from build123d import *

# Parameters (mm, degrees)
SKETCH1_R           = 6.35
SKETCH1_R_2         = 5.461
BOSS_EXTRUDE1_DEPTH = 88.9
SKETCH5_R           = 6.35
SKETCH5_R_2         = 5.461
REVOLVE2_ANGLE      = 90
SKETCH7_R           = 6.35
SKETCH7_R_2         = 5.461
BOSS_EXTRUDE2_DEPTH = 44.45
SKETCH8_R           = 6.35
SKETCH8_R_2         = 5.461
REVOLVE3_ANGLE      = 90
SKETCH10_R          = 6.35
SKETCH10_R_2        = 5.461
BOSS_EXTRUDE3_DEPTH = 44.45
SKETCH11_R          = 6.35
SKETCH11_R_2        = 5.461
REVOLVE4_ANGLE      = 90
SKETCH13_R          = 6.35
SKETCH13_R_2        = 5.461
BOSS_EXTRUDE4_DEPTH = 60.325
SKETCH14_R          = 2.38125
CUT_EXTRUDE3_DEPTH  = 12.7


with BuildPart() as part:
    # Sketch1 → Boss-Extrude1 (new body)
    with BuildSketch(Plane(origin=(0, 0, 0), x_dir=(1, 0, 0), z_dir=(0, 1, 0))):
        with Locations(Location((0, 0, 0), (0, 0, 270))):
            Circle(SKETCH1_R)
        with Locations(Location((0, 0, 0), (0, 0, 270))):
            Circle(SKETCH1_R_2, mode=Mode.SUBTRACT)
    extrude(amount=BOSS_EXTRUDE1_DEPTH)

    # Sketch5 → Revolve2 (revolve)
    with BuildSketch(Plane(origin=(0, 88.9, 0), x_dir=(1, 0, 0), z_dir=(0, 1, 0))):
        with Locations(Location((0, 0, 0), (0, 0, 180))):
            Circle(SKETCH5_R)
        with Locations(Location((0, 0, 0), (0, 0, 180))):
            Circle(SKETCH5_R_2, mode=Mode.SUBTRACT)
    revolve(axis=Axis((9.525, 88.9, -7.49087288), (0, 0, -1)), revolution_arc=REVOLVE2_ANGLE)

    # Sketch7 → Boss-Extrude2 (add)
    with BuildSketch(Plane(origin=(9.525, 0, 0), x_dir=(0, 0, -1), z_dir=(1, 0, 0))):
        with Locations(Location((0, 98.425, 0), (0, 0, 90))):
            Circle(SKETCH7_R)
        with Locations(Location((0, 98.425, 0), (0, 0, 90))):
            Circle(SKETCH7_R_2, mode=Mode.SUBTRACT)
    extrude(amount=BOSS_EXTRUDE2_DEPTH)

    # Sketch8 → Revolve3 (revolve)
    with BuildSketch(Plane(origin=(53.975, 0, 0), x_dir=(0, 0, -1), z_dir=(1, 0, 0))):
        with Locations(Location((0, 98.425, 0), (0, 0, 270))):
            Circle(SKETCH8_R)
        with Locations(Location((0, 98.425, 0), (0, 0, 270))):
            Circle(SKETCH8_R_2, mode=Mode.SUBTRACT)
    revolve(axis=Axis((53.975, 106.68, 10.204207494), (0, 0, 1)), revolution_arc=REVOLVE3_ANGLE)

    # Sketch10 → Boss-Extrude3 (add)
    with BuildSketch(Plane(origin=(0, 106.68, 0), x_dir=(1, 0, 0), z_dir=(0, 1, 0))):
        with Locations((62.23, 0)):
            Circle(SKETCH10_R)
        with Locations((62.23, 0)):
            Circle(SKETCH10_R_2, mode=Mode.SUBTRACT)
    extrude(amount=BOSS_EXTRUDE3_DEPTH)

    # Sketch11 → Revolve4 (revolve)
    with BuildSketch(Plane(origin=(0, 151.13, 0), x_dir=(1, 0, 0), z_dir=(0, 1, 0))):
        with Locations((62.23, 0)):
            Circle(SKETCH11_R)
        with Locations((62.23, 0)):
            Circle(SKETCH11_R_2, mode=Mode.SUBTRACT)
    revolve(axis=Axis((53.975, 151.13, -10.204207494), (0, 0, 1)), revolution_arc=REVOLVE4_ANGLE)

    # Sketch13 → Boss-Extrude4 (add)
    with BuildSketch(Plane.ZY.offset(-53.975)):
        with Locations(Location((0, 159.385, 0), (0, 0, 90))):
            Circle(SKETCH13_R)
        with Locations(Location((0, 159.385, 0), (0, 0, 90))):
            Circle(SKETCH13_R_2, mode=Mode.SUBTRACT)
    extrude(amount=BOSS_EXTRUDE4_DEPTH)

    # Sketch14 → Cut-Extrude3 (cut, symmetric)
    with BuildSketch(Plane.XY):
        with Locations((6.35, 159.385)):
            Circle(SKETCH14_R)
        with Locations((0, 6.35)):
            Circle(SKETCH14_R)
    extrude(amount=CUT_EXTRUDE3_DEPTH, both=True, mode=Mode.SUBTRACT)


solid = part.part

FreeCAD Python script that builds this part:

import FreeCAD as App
import Part
import Sketcher

V = App.Vector
Q = App.Units.Quantity

doc = App.newDocument("Part")
body = doc.addObject("PartDesign::Body", "Body")

sketch1 = body.newObject("Sketcher::SketchObject", "Sketch")
sketch1.AttachmentSupport = (doc.getObject("XZ_Plane"), [""])
sketch1.MapMode = "FlatFace"
sketch1.addGeometry([
    Part.Circle(V(0, 0, 0), V(0, 0, 1), 6),
    Part.Circle(V(0, 0, 0), V(0, 0, 1), 5),
], False)
sketch1.addConstraint([
    Sketcher.Constraint("Coincident", 0, 3, -1, 1),
    Sketcher.Constraint("Coincident", 1, 3, -1, 1),
    Sketcher.Constraint("Diameter", 0, Q("0.5 in")),
    Sketcher.Constraint("Diameter", 1, Q("0.43 in")),
])
pad1 = body.newObject("PartDesign::Pad", "Pad")
pad1.Profile = sketch1
pad1.Length = Q("3.5 in")
pad1.Reversed = True

sketch2 = body.newObject("Sketcher::SketchObject", "Sketch001")
sketch2.AttachmentSupport = (doc.getObject("XZ_Plane"), [""])
sketch2.MapMode = "FlatFace"
sketch2.AttachmentOffset = App.Placement(V(0, 0, -3.5 * 25.4), App.Rotation())
sketch2.addGeometry([
    Part.Circle(V(0, 0, 0), V(0, 0, 1), 6),
    Part.Circle(V(0, 0, 0), V(0, 0, 1), 5),
], False)
sketch2.addGeometry(Part.LineSegment(V(10, 0, 0), V(10, -10, 0)), True)
sketch2.addConstraint([
    Sketcher.Constraint("Vertical", 2),
    Sketcher.Constraint("Coincident", 0, 3, -1, 1),
    Sketcher.Constraint("Coincident", 1, 3, -1, 1),
    Sketcher.Constraint("PointOnObject", 2, 1, -1),
    Sketcher.Constraint("Diameter", 0, Q("0.5 in")),
    Sketcher.Constraint("Diameter", 1, Q("0.43 in")),
    Sketcher.Constraint("DistanceX", -1, 1, 2, 1, Q("0.375 in")),
    Sketcher.Constraint("DistanceY", 2, 2, 2, 1, Q("10 mm")),
])
revolution = body.newObject("PartDesign::Revolution", "Revolution")
revolution.Profile = sketch2
revolution.ReferenceAxis = (sketch2, ["Axis0"])
revolution.Angle = 90

sketch3 = body.newObject("Sketcher::SketchObject", "Sketch002")
sketch3.AttachmentSupport = (doc.getObject("YZ_Plane"), [""])
sketch3.MapMode = "FlatFace"
sketch3.AttachmentOffset = App.Placement(V(0, 0, 0.375 * 25.4), App.Rotation())
sketch3.addGeometry([
    Part.Circle(V(98, 0, 0), V(0, 0, 1), 6),
    Part.Circle(V(98, 0, 0), V(0, 0, 1), 5),
], False)
sketch3.addConstraint([
    Sketcher.Constraint("Coincident", 1, 3, 0, 3),
    Sketcher.Constraint("PointOnObject", 0, 3, -1),
    Sketcher.Constraint("Diameter", 0, Q("0.5 in")),
    Sketcher.Constraint("Diameter", 1, Q("0.43 in")),
    Sketcher.Constraint("DistanceX", -1, 1, 0, 3, Q("3.875 in")),
])
pad2 = body.newObject("PartDesign::Pad", "Pad001")
pad2.Profile = sketch3
pad2.Length = Q("1.75 in")

sketch4 = body.newObject("Sketcher::SketchObject", "Sketch003")
sketch4.AttachmentSupport = (doc.getObject("YZ_Plane"), [""])
sketch4.MapMode = "FlatFace"
sketch4.AttachmentOffset = App.Placement(V(0, 0, 2.125 * 25.4), App.Rotation())
sketch4.addGeometry([
    Part.Circle(V(98, 0, 0), V(0, 0, 1), 6),
    Part.Circle(V(98, 0, 0), V(0, 0, 1), 5),
], False)
sketch4.addGeometry(Part.LineSegment(V(107, 0, 0), V(107, 10, 0)), True)
sketch4.addConstraint([
    Sketcher.Constraint("Vertical", 2),
    Sketcher.Constraint("Coincident", 1, 3, 0, 3),
    Sketcher.Constraint("PointOnObject", 0, 3, -1),
    Sketcher.Constraint("PointOnObject", 2, 1, -1),
    Sketcher.Constraint("Diameter", 0, Q("0.5 in")),
    Sketcher.Constraint("Diameter", 1, Q("0.43 in")),
    Sketcher.Constraint("DistanceX", -1, 1, 2, 1, Q("4.2 in")),
    Sketcher.Constraint("DistanceX", -1, 1, 0, 3, Q("3.875 in")),
    Sketcher.Constraint("DistanceY", 2, 1, 2, 2, Q("10 mm")),
])
revolution2 = body.newObject("PartDesign::Revolution", "Revolution001")
revolution2.Profile = sketch4
revolution2.ReferenceAxis = (sketch4, ["Axis0"])
revolution2.Angle = 90

sketch5 = body.newObject("Sketcher::SketchObject", "Sketch004")
sketch5.AttachmentSupport = (doc.getObject("XZ_Plane"), [""])
sketch5.MapMode = "FlatFace"
sketch5.AttachmentOffset = App.Placement(V(0, 0, -4.2 * 25.4), App.Rotation())
sketch5.addGeometry([
    Part.Circle(V(62, 0, 0), V(0, 0, 1), 6),
    Part.Circle(V(62, 0, 0), V(0, 0, 1), 5),
], False)
sketch5.addConstraint([
    Sketcher.Constraint("Coincident", 1, 3, 0, 3),
    Sketcher.Constraint("PointOnObject", 0, 3, -1),
    Sketcher.Constraint("Diameter", 0, Q("0.5 in")),
    Sketcher.Constraint("Diameter", 1, Q("0.43 in")),
    Sketcher.Constraint("DistanceX", -1, 1, 0, 3, Q("2.45 in")),
])
pad3 = body.newObject("PartDesign::Pad", "Pad002")
pad3.Profile = sketch5
pad3.Length = Q("1.75 in")
pad3.Reversed = True

sketch6 = body.newObject("Sketcher::SketchObject", "Sketch005")
sketch6.AttachmentSupport = (doc.getObject("XZ_Plane"), [""])
sketch6.MapMode = "FlatFace"
sketch6.AttachmentOffset = App.Placement(V(0, 0, -5.95 * 25.4), App.Rotation())
sketch6.addGeometry([
    Part.Circle(V(62, 0, 0), V(0, 0, 1), 6),
    Part.Circle(V(62, 0, 0), V(0, 0, 1), 5),
], False)
sketch6.addGeometry(Part.LineSegment(V(54, 0, 0), V(54, 10, 0)), True)
sketch6.addConstraint([
    Sketcher.Constraint("Vertical", 2),
    Sketcher.Constraint("Coincident", 1, 3, 0, 3),
    Sketcher.Constraint("PointOnObject", 0, 3, -1),
    Sketcher.Constraint("PointOnObject", 2, 1, -1),
    Sketcher.Constraint("Diameter", 0, Q("0.5 in")),
    Sketcher.Constraint("Diameter", 1, Q("0.43 in")),
    Sketcher.Constraint("DistanceX", -1, 1, 0, 3, Q("2.45 in")),
    Sketcher.Constraint("DistanceX", -1, 1, 2, 1, Q("2.125 in")),
    Sketcher.Constraint("DistanceY", 2, 1, 2, 2, Q("10 mm")),
])
revolution3 = body.newObject("PartDesign::Revolution", "Revolution002")
revolution3.Profile = sketch6
revolution3.ReferenceAxis = (sketch6, ["Axis0"])
revolution3.Angle = 90

sketch7 = body.newObject("Sketcher::SketchObject", "Sketch006")
sketch7.AttachmentSupport = (doc.getObject("YZ_Plane"), [""])
sketch7.MapMode = "FlatFace"
sketch7.AttachmentOffset = App.Placement(V(0, 0, 2.125 * 25.4), App.Rotation())
sketch7.addGeometry([
    Part.Circle(V(159, 0, 0), V(0, 0, 1), 6),
    Part.Circle(V(159, 0, 0), V(0, 0, 1), 5),
], False)
sketch7.addConstraint([
    Sketcher.Constraint("Coincident", 1, 3, 0, 3),
    Sketcher.Constraint("PointOnObject", 0, 3, -1),
    Sketcher.Constraint("Diameter", 0, Q("0.5 in")),
    Sketcher.Constraint("Diameter", 1, Q("0.43 in")),
    Sketcher.Constraint("DistanceX", -1, 1, 0, 3, Q("6.275 in")),
])
pad4 = body.newObject("PartDesign::Pad", "Pad003")
pad4.Profile = sketch7
pad4.Length = Q("2.375 in")
pad4.Reversed = True

sketch8 = body.newObject("Sketcher::SketchObject", "Sketch007")
sketch8.AttachmentSupport = (doc.getObject("XY_Plane"), [""])
sketch8.MapMode = "FlatFace"
sketch8.addGeometry([
    Part.Circle(V(6.3, 159.4, 0), V(0, 0, 1), 2.4),
    Part.Circle(V(0, 6.3, 0), V(0, 0, 1), 2.4),
], False)
sketch8.addConstraint([
    Sketcher.Constraint("Equal", 0, 1),
    Sketcher.Constraint("PointOnObject", 1, 3, -2),
    Sketcher.Constraint("Diameter", 0, Q("0.1875 in")),
    Sketcher.Constraint("DistanceX", -1, 1, 0, 3, Q("0.25 in")),
    Sketcher.Constraint("DistanceY", -1, 1, 1, 3, Q("0.25 in")),
    Sketcher.Constraint("DistanceY", -1, 1, 0, 3, Q("6.275 in")),
])
pocket1 = body.newObject("PartDesign::Pocket", "Pocket")
pocket1.Profile = sketch8
pocket1.Length = Q("1 in")
pocket1.Midplane = True

doc.recompute()
